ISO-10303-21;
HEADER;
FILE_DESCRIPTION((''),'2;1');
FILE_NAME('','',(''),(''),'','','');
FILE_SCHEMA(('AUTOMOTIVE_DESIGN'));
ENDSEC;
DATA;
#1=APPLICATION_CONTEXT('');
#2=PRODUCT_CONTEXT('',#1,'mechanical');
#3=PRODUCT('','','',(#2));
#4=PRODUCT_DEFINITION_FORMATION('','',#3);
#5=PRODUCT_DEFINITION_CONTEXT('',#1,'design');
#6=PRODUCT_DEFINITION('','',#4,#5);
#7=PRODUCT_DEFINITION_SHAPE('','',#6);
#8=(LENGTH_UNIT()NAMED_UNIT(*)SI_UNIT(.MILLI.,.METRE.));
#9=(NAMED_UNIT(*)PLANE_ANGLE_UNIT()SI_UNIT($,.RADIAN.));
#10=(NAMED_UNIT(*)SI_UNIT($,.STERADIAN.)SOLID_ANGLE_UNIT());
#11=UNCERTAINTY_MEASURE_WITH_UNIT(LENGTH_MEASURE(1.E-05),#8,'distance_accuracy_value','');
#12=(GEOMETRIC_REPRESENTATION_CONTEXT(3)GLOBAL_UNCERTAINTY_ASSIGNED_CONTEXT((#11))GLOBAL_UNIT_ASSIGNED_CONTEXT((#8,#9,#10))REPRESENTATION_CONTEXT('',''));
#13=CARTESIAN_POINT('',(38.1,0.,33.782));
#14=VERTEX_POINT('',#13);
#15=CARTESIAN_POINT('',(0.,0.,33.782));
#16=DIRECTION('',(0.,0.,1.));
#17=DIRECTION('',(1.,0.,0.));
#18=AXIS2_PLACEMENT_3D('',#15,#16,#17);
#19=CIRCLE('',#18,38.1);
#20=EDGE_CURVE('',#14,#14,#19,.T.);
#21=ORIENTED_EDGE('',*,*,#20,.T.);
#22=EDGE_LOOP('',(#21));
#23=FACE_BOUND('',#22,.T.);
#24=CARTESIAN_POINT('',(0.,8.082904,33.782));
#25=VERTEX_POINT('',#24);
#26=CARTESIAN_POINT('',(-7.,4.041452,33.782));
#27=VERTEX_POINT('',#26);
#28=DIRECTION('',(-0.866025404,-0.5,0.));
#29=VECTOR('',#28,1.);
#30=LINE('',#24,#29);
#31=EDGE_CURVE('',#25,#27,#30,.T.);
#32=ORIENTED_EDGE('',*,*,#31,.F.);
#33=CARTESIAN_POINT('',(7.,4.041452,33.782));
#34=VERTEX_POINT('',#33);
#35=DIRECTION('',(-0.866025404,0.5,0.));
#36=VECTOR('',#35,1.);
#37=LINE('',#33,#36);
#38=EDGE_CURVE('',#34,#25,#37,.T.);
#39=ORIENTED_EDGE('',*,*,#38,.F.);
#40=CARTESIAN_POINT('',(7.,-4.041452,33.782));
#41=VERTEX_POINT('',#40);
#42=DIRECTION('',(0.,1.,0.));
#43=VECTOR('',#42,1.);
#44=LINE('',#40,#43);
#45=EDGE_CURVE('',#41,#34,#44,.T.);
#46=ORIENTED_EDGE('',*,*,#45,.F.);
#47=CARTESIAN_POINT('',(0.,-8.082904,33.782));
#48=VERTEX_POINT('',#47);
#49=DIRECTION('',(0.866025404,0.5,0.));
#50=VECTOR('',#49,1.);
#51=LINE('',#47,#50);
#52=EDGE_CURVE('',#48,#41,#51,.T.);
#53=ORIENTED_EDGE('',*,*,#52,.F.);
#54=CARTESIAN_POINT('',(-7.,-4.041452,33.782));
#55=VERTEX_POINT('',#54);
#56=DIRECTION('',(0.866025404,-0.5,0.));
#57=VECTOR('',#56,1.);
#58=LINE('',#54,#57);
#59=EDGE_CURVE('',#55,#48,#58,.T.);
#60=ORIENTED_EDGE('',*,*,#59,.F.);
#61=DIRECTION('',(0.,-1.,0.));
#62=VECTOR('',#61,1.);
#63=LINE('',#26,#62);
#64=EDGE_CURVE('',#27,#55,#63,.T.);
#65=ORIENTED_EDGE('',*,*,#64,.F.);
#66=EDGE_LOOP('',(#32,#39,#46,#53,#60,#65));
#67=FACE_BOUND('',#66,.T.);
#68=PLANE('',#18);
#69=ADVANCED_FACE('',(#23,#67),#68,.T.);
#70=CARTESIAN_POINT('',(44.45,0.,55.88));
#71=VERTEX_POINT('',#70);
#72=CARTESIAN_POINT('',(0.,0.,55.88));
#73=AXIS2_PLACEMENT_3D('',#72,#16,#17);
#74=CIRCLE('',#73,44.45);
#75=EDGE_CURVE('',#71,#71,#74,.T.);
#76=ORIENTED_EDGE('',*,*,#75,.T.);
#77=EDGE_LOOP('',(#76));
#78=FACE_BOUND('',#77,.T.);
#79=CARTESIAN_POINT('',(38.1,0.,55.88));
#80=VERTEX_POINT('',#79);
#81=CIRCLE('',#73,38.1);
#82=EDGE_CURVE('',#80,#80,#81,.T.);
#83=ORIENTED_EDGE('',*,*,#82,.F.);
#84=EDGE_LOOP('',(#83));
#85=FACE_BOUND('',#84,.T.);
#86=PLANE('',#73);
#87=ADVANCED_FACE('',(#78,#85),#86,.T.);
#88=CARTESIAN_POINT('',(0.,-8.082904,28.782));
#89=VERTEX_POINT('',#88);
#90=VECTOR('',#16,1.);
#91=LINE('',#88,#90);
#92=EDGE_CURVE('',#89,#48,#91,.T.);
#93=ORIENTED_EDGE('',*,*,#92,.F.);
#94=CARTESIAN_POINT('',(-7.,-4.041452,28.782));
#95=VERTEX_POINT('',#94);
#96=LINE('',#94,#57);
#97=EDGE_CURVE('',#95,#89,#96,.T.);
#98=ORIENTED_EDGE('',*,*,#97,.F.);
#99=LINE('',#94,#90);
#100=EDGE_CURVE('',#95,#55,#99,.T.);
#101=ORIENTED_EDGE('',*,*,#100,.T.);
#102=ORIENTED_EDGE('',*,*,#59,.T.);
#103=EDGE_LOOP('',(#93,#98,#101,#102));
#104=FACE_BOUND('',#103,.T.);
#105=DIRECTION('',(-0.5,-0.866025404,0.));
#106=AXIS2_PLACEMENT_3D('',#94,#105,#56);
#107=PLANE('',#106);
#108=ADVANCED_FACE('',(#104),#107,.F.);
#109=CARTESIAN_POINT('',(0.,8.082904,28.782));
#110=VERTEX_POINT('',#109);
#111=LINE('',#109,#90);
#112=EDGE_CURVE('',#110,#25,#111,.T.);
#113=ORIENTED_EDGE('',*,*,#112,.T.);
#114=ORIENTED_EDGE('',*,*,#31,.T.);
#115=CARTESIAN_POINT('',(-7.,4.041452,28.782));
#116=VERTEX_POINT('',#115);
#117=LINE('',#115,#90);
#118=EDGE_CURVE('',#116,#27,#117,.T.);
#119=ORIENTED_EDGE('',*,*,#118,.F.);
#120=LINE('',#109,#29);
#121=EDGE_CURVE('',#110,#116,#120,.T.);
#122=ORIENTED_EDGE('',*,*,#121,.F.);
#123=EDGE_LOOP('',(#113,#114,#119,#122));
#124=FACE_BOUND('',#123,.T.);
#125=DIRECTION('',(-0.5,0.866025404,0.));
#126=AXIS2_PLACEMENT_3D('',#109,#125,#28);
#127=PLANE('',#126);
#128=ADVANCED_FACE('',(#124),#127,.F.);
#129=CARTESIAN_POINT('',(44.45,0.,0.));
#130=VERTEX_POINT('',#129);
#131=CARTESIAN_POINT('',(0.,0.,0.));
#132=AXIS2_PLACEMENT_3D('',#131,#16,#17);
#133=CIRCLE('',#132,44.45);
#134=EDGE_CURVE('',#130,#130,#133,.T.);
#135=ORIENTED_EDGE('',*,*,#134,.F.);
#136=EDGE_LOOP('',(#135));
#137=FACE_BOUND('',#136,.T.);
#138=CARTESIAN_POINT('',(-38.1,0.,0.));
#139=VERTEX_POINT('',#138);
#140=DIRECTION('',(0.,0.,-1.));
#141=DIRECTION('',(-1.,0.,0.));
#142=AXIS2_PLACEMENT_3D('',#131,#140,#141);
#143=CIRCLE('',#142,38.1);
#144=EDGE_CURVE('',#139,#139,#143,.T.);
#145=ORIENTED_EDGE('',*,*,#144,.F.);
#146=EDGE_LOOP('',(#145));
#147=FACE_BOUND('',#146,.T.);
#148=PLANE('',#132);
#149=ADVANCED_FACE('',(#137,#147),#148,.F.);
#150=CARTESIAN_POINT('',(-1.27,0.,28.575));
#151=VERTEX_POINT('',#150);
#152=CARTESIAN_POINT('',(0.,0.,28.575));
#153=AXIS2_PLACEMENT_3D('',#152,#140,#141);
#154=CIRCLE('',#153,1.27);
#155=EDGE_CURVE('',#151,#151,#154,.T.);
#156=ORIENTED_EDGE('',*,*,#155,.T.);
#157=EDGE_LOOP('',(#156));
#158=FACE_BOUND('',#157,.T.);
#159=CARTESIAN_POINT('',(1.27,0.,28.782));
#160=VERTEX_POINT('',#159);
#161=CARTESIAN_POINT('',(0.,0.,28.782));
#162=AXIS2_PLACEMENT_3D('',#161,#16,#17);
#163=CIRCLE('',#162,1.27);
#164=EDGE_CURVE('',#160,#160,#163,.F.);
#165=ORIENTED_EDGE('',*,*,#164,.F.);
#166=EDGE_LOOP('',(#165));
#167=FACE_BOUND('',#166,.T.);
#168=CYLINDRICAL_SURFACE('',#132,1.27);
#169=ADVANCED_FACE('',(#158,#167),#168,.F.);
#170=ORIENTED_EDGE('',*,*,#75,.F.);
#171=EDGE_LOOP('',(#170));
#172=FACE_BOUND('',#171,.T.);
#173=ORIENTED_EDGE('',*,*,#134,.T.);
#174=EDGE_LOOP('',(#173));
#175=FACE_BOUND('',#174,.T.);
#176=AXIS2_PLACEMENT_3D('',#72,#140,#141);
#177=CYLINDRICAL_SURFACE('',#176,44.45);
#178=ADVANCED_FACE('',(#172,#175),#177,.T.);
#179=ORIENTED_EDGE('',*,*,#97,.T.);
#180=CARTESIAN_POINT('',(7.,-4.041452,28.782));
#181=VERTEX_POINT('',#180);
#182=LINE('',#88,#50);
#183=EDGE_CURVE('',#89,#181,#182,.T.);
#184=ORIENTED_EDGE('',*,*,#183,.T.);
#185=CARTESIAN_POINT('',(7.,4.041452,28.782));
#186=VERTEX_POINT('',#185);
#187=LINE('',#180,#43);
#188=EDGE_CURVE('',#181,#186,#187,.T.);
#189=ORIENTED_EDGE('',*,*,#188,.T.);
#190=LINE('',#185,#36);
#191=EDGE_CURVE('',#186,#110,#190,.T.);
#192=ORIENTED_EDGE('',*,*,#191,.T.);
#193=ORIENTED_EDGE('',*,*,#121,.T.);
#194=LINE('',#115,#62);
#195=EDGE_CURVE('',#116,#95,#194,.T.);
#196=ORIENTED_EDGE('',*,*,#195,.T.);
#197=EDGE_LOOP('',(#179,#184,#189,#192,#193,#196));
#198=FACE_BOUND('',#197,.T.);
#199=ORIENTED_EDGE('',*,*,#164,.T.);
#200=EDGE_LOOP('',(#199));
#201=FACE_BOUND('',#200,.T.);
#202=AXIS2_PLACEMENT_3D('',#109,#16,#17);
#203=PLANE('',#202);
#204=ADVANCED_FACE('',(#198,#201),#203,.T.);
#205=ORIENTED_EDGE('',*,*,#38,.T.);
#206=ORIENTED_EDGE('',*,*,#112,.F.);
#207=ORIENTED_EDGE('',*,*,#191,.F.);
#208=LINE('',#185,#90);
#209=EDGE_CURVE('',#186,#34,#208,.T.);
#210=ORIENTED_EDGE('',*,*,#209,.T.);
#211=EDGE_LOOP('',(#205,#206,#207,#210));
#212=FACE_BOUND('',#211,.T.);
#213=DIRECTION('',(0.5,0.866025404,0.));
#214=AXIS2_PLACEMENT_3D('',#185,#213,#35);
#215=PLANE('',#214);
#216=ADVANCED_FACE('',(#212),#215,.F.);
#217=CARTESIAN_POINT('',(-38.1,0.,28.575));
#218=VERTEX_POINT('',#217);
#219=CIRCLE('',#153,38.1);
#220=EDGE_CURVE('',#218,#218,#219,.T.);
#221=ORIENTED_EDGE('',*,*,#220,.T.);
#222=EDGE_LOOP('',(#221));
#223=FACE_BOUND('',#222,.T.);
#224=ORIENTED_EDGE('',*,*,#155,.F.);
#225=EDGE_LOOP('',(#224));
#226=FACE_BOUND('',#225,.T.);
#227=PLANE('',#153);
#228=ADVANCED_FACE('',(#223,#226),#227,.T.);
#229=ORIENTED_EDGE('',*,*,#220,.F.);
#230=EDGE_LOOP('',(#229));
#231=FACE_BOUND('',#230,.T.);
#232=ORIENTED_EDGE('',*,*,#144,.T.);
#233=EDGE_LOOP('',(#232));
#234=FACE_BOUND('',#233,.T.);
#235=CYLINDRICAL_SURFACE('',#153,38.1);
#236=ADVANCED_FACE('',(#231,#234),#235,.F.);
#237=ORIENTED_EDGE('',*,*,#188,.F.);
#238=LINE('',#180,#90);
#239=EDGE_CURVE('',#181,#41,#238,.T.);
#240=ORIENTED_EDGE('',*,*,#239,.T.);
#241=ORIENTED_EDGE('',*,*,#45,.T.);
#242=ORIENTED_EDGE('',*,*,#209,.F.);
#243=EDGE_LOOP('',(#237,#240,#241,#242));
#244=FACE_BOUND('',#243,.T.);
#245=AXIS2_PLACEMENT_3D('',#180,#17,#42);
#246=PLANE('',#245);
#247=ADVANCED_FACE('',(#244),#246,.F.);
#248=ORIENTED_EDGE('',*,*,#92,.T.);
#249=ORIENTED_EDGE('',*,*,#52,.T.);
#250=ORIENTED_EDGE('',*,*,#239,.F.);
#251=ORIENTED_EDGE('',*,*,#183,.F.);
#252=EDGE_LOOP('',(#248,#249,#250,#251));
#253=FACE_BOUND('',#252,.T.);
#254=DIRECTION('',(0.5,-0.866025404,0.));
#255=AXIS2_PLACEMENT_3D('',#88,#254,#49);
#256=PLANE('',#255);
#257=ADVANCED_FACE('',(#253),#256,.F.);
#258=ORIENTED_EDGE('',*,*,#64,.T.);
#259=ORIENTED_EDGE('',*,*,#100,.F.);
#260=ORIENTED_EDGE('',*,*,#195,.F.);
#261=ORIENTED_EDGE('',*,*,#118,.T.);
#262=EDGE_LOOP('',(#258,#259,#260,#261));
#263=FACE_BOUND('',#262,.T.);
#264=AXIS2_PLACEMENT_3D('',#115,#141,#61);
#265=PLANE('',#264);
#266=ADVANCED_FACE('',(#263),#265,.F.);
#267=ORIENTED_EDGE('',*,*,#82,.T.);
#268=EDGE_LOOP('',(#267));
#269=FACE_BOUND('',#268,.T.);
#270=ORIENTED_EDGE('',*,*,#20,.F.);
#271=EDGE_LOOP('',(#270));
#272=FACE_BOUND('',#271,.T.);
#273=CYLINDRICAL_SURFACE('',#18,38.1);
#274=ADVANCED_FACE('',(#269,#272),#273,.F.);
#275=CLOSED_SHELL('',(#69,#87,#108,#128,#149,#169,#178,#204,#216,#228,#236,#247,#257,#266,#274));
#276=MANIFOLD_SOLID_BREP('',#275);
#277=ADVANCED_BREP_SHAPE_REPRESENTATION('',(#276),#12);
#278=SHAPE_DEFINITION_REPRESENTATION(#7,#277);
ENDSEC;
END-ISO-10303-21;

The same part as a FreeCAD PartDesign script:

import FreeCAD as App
import Part
import Sketcher
Q = App.Units.Quantity

doc = App.newDocument("Part")
body = doc.addObject("PartDesign::Body", "Body")

# Sketch on XY plane
sketch1 = body.newObject("Sketcher::SketchObject", "Sketch")
sketch1.AttachmentSupport = (doc.getObject("XY_Plane"), [""])
sketch1.MapMode = "FlatFace"
sketch1.addGeometry(Part.Circle(App.Vector(0, 0, 0), App.Vector(0, 0, 1), 44), False)
sketch1.addConstraint(Sketcher.Constraint("Coincident", 0, 3, -1, 1))
sketch1.addConstraint(Sketcher.Constraint("Diameter", 0, Q("3.5 in")))
pad1 = body.newObject("PartDesign::Pad", "Pad")
pad1.Profile = sketch1
pad1.Length = Q("2.2 in")

# Sketch on XY plane
sketch2 = body.newObject("Sketcher::SketchObject", "Sketch001")
sketch2.AttachmentSupport = (doc.getObject("XY_Plane"), [""])
sketch2.MapMode = "FlatFace"
sketch2.AttachmentOffset = App.Placement(App.Vector(0, 0, 2.2 * 25.4), App.Rotation())
sketch2.addGeometry(Part.Circle(App.Vector(0, 0, 0), App.Vector(0, 0, 1), 38), False)
sketch2.addConstraint(Sketcher.Constraint("Coincident", 0, 3, -1, 1))
sketch2.addConstraint(Sketcher.Constraint("Diameter", 0, Q("3 in")))
pocket1 = body.newObject("PartDesign::Pocket", "Pocket")
pocket1.Profile = sketch2
pocket1.Length = Q("0.87 in")

# Sketch on XY plane
sketch3 = body.newObject("Sketcher::SketchObject", "Sketch002")
sketch3.AttachmentSupport = (doc.getObject("XY_Plane"), [""])
sketch3.MapMode = "FlatFace"
sketch3.AttachmentOffset = App.Placement(App.Vector(0, 0, 1.125 * 25.4), App.Rotation())
sketch3.addGeometry(Part.Circle(App.Vector(0, 0, 0), App.Vector(0, 0, 1), 38), False)
sketch3.addConstraint(Sketcher.Constraint("Coincident", 0, 3, -1, 1))
sketch3.addConstraint(Sketcher.Constraint("Diameter", 0, Q("3 in")))
pocket2 = body.newObject("PartDesign::Pocket", "Pocket001")
pocket2.Profile = sketch3
pocket2.Length = Q("1.125 in")

# Sketch on XY plane
sketch4 = body.newObject("Sketcher::SketchObject", "Sketch003")
sketch4.AttachmentSupport = (doc.getObject("XY_Plane"), [""])
sketch4.MapMode = "FlatFace"
sketch4.AttachmentOffset = App.Placement(App.Vector(0, 0, 1.33 * 25.4), App.Rotation())
sketch4.addGeometry(Part.Circle(App.Vector(0, 0, 0), App.Vector(0, 0, 1), 1.3), False)
sketch4.addConstraint(Sketcher.Constraint("Coincident", 0, 3, -1, 1))
sketch4.addConstraint(Sketcher.Constraint("Diameter", 0, Q("0.1 in")))
pocket3 = body.newObject("PartDesign::Pocket", "Pocket002")
pocket3.Profile = sketch4
pocket3.Type = "ThroughAll"

# Sketch on XY plane
sketch5 = body.newObject("Sketcher::SketchObject", "Sketch004")
sketch5.AttachmentSupport = (doc.getObject("XY_Plane"), [""])
sketch5.MapMode = "FlatFace"
sketch5.AttachmentOffset = App.Placement(App.Vector(0, 0, 1.33 * 25.4), App.Rotation())
sketch5.addGeometry(Part.LineSegment(App.Vector(0, 8, 0), App.Vector(-7, 4, 0)), False)
sketch5.addGeometry(Part.LineSegment(App.Vector(-7, 4, 0), App.Vector(-7, -4, 0)), False)
sketch5.addGeometry(Part.LineSegment(App.Vector(-7, -4, 0), App.Vector(0, -8, 0)), False)
sketch5.addGeometry(Part.LineSegment(App.Vector(0, -8, 0), App.Vector(7, -4, 0)), False)
sketch5.addGeometry(Part.LineSegment(App.Vector(7, -4, 0), App.Vector(7, 4, 0)), False)
sketch5.addGeometry(Part.LineSegment(App.Vector(7, 4, 0), App.Vector(0, 8, 0)), False)
sketch5.addConstraint(Sketcher.Constraint("Coincident", 0, 2, 1, 1))
sketch5.addConstraint(Sketcher.Constraint("Coincident", 1, 2, 2, 1))
sketch5.addConstraint(Sketcher.Constraint("Coincident", 2, 2, 3, 1))
sketch5.addConstraint(Sketcher.Constraint("Coincident", 3, 2, 4, 1))
sketch5.addConstraint(Sketcher.Constraint("Coincident", 4, 2, 5, 1))
sketch5.addConstraint(Sketcher.Constraint("Coincident", 5, 2, 0, 1))
sketch5.addConstraint(Sketcher.Constraint("Vertical", 1))
sketch5.addConstraint(Sketcher.Constraint("Vertical", 4))
sketch5.addConstraint(Sketcher.Constraint("Symmetric", 0, 2, 3, 2, -1, 1))
sketch5.addConstraint(Sketcher.Constraint("Symmetric", 2, 2, 5, 2, -1, 1))
sketch5.addConstraint(Sketcher.Constraint("PointOnObject", 2, 2, -2))
sketch5.addConstraint(Sketcher.Constraint("Parallel", 2, 5))
sketch5.addConstraint(Sketcher.Constraint("Horizontal", 1, 2, 3, 2))
sketch5.addConstraint(Sketcher.Constraint("Angle", 0, Q("-150 deg")))
sketch5.addConstraint(Sketcher.Constraint("DistanceX", 0, 2, -1, 1, 7.0))
sketch5.addConstraint(Sketcher.Constraint("DistanceY", 1, 2, 1, 1, 8.082904))
pocket4 = body.newObject("PartDesign::Pocket", "Pocket003")
pocket4.Profile = sketch5
pocket4.Length = 5

doc.recompute()
